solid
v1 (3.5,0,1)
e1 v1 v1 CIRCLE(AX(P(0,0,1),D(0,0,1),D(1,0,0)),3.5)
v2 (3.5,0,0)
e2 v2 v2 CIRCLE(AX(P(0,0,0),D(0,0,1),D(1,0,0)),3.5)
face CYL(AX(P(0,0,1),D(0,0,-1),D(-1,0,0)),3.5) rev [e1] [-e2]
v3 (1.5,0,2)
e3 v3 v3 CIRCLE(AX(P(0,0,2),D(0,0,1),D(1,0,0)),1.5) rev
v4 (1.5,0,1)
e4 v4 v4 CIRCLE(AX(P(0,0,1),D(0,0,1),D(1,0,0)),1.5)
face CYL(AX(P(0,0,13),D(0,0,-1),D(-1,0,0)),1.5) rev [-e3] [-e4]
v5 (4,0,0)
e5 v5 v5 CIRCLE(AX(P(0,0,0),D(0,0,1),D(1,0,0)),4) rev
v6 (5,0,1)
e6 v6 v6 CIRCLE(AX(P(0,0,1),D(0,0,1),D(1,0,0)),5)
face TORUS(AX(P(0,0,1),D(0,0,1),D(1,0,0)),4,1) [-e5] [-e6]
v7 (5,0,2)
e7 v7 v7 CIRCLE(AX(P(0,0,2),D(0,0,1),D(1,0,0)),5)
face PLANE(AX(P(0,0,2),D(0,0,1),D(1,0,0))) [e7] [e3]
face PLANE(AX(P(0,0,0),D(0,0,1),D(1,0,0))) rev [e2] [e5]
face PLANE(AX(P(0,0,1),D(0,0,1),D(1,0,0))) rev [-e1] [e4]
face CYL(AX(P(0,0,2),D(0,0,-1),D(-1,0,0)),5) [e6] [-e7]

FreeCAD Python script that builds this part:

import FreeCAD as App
import Part
import Sketcher
Q = App.Units.Quantity


def edges_at(feature, points):
    """Names of the edges that pass closest to the given points."""
    edges = feature.Shape.Edges
    near = lambda p: min(range(len(edges)), key=lambda i: edges[i].distToShape(Part.Vertex(*p))[0])
    return sorted({f"Edge{near(p) + 1}" for p in points})

doc = App.newDocument("Part")
params = doc.addObject("Spreadsheet::Sheet", "Params")
for row, (alias, value) in enumerate([
    ("sketch1_diameter", "10 mm"),
    ("pad1_length", "2 mm"),
    ("sketch2_diameter", "3 mm"),
    ("pocket1_length", "13 mm"),
    ("sketch3_diameter", "7 mm"),
    ("pocket2_length", "1 mm"),
    ("fillet_radius", "1 mm"),
], start=1):
    params.set(f"A{row}", alias)
    params.set(f"B{row}", "=" + value)
    params.setAlias(f"B{row}", alias)

body = doc.addObject("PartDesign::Body", "Body")

sketch1 = body.newObject("Sketcher::SketchObject", "Sketch")
sketch1.AttachmentSupport = (doc.getObject("XY_Plane"), [""])
sketch1.MapMode = "FlatFace"
sketch1.addGeometry(Part.Circle(App.Vector(0, 0, 0), App.Vector(0, 0, 1), 5), False)
sketch1.addConstraint([
    Sketcher.Constraint("Coincident", 0, 3, -1, 1),
    Sketcher.Constraint("Diameter", 0, Q("10 mm")),
])
sketch1.setExpression("Constraints[1]", "Params.sketch1_diameter")
pad1 = body.newObject("PartDesign::Pad", "Pad")
pad1.Profile = sketch1
pad1.setExpression("Length", "Params.pad1_length")

sketch2 = body.newObject("Sketcher::SketchObject", "Sketch001")
sketch2.AttachmentSupport = (doc.getObject("XY_Plane"), [""])
sketch2.MapMode = "FlatFace"
sketch2.addGeometry(Part.Circle(App.Vector(0, 0, 0), App.Vector(0, 0, 1), 1.5), False)
sketch2.addConstraint([
    Sketcher.Constraint("Coincident", 0, 3, -1, 1),
    Sketcher.Constraint("Diameter", 0, Q("3 mm")),
])
sketch2.setExpression("Constraints[1]", "Params.sketch2_diameter")
pocket1 = body.newObject("PartDesign::Pocket", "Pocket")
pocket1.Profile = sketch2
pocket1.setExpression("Length", "Params.pocket1_length")
pocket1.Reversed = True

sketch3 = body.newObject("Sketcher::SketchObject", "Sketch002")
sketch3.AttachmentSupport = (doc.getObject("XY_Plane"), [""])
sketch3.MapMode = "FlatFace"
sketch3.addGeometry(Part.Circle(App.Vector(0, 0, 0), App.Vector(0, 0, 1), 3.5), False)
sketch3.addConstraint([
    Sketcher.Constraint("Coincident", 0, 3, -1, 1),
    Sketcher.Constraint("Diameter", 0, Q("7 mm")),
])
sketch3.setExpression("Constraints[1]", "Params.sketch3_diameter")
pocket2 = body.newObject("PartDesign::Pocket", "Pocket001")
pocket2.Profile = sketch3
pocket2.setExpression("Length", "Params.pocket2_length")
pocket2.Reversed = True
doc.recompute()

fillet = body.newObject("PartDesign::Fillet", "Fillet")
fillet.Base = (pocket2, edges_at(pocket2, [(-5, 0, 0)]))
fillet.setExpression("Radius", "Params.fillet_radius")

doc.recompute()
